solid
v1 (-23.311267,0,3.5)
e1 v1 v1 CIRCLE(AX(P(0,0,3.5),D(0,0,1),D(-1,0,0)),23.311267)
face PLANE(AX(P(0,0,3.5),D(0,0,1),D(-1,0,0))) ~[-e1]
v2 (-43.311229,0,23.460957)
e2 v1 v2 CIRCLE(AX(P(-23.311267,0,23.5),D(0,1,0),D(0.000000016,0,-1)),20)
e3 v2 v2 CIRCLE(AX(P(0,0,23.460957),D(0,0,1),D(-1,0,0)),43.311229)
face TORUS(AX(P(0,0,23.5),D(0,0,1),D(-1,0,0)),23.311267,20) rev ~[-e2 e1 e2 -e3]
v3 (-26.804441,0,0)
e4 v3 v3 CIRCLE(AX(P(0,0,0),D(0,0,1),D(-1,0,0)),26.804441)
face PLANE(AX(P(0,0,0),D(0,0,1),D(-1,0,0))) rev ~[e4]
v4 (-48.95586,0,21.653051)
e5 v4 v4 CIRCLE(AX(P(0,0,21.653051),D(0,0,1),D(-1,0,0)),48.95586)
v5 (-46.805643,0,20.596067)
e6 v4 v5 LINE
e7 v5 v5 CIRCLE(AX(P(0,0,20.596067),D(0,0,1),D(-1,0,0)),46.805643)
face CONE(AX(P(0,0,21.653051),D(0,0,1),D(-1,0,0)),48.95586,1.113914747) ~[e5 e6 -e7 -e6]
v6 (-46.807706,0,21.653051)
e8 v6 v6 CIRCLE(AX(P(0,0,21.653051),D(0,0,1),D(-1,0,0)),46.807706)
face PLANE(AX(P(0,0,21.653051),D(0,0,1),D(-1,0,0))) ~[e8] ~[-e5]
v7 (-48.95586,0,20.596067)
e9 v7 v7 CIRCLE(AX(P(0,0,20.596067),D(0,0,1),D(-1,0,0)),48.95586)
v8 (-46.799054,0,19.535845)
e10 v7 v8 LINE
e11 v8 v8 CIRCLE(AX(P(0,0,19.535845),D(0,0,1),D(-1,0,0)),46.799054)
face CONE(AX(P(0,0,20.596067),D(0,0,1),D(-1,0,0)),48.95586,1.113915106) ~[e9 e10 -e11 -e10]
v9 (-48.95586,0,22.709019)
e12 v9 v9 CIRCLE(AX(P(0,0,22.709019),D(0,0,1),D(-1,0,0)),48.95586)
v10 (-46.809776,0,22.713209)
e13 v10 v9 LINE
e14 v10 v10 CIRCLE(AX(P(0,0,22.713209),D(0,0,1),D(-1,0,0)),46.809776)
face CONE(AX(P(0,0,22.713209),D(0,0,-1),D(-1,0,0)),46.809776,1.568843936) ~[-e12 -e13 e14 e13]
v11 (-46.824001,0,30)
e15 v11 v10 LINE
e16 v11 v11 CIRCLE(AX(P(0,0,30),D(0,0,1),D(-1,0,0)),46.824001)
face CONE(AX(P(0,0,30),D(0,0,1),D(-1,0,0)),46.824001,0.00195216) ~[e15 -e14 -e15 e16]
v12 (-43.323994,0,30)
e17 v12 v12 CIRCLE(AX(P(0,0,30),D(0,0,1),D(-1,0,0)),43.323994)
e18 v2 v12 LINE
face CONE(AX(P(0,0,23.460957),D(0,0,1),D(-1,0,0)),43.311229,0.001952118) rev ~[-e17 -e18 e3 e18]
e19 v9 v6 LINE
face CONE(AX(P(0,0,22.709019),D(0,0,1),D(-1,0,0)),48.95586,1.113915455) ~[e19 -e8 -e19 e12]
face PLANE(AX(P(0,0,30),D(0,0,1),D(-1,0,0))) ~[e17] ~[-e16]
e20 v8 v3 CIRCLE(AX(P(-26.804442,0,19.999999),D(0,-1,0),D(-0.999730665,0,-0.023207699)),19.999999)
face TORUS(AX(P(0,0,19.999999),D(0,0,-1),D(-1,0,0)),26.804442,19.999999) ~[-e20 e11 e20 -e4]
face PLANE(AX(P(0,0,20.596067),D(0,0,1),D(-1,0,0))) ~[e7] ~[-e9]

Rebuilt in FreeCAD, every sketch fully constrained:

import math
import FreeCAD as App
import Part
import Sketcher
Q = App.Units.Quantity

doc = App.newDocument("Part")
body = doc.addObject("PartDesign::Body", "Body")

sketch1 = body.newObject("Sketcher::SketchObject", "Sketch")
sketch1.AttachmentSupport = (doc.getObject("XZ_Plane"), [""])
sketch1.MapMode = "FlatFace"
sketch1.addGeometry([
    Part.LineSegment(App.Vector(-26.8, 0, 0), App.Vector(0, 0, 0)),
    Part.LineSegment(App.Vector(0, 0, 0), App.Vector(0, 3.5, 0)),
    Part.LineSegment(App.Vector(0, 3.5, 0), App.Vector(-23.3, 3.5, 0)),
    Part.ArcOfCircle(Part.Circle(App.Vector(-23.3, 23.5, 0), App.Vector(0, 0, 1), 20), math.radians(-180), math.radians(-90)),
    Part.LineSegment(App.Vector(-43.3, 23.5, 0), App.Vector(-43.3, 30, 0)),
    Part.LineSegment(App.Vector(-43.3, 30, 0), App.Vector(-46.8, 30, 0)),
    Part.LineSegment(App.Vector(-46.8, 30, 0), App.Vector(-46.8, 22.7, 0)),
    Part.LineSegment(App.Vector(-46.8, 22.7, 0), App.Vector(-49, 22.7, 0)),
    Part.LineSegment(App.Vector(-49, 22.7, 0), App.Vector(-46.8, 21.7, 0)),
    Part.LineSegment(App.Vector(-46.8, 21.7, 0), App.Vector(-49, 21.7, 0)),
    Part.LineSegment(App.Vector(-49, 21.7, 0), App.Vector(-46.8, 20.6, 0)),
    Part.LineSegment(App.Vector(-46.8, 20.6, 0), App.Vector(-49, 20.6, 0)),
    Part.LineSegment(App.Vector(-49, 20.6, 0), App.Vector(-46.8, 19.5, 0)),
    Part.ArcOfCircle(Part.Circle(App.Vector(-26.8, 20, 0), App.Vector(0, 0, 1), 20), math.radians(-179), math.radians(-90)),
], False)
sketch1.addConstraint([
    Sketcher.Constraint("Coincident", 0, 2, 1, 1),
    Sketcher.Constraint("Coincident", 1, 2, 2, 1),
    Sketcher.Constraint("Tangent", 2, 2, 3, 2),
    Sketcher.Constraint("Tangent", 3, 1, 4, 1),
    Sketcher.Constraint("Coincident", 4, 2, 5, 1),
    Sketcher.Constraint("Coincident", 5, 2, 6, 1),
    Sketcher.Constraint("Coincident", 6, 2, 7, 1),
    Sketcher.Constraint("Coincident", 7, 2, 8, 1),
    Sketcher.Constraint("Coincident", 8, 2, 9, 1),
    Sketcher.Constraint("Coincident", 9, 2, 10, 1),
    Sketcher.Constraint("Coincident", 10, 2, 11, 1),
    Sketcher.Constraint("Coincident", 11, 2, 12, 1),
    Sketcher.Constraint("Coincident", 12, 2, 13, 1),
    Sketcher.Constraint("Tangent", 13, 2, 0, 1),
    Sketcher.Constraint("Horizontal", 0),
    Sketcher.Constraint("Vertical", 1),
    Sketcher.Constraint("Horizontal", 2),
    Sketcher.Constraint("Horizontal", 5),
    Sketcher.Constraint("Horizontal", 9),
    Sketcher.Constraint("Horizontal", 11),
    Sketcher.Constraint("Coincident", 0, 2, -1, 1),
    Sketcher.Constraint("Equal", 3, 13),
    Sketcher.Constraint("Parallel", 4, 6),
    Sketcher.Constraint("Perpendicular", 6, 7),
    Sketcher.Constraint("Parallel", 8, 10),
    Sketcher.Constraint("Parallel", 10, 12),
    Sketcher.Constraint("Vertical", 7, 2, 9, 2),
    Sketcher.Constraint("Vertical", 9, 2, 11, 2),
    Sketcher.Constraint("Radius", 3, Q("20 mm")),
    Sketcher.Constraint("DistanceY", 1, 1, 1, 2, Q("3.5 mm")),
    Sketcher.Constraint("DistanceY", -1, 1, 4, 2, Q("30 mm")),
    Sketcher.Constraint("DistanceX", 5, 2, -1, 1, Q("46.824001 mm")),
    Sketcher.Constraint("DistanceX", 0, 1, 0, 2, Q("26.804441 mm")),
    Sketcher.Constraint("Distance", 7, Q("2.146088 mm")),
    Sketcher.Constraint("DistanceX", 2, 2, 2, 1, Q("23.311267 mm")),
    Sketcher.Constraint("DistanceX", 5, 2, 5, 1, Q("3.500007 mm")),
    Sketcher.Constraint("DistanceX", 9, 2, 9, 1, Q("2.148154 mm")),
    Sketcher.Constraint("DistanceX", 11, 2, 11, 1, Q("2.150217 mm")),
    Sketcher.Constraint("DistanceY", -1, 1, 6, 2, Q("22.713209 mm")),
    Sketcher.Constraint("DistanceY", -1, 1, 8, 2, Q("21.653051 mm")),
])
revolution = body.newObject("PartDesign::Revolution", "Revolution")
revolution.Profile = sketch1
revolution.ReferenceAxis = (sketch1, ["V_Axis"])
revolution.Angle = 360

doc.recompute()
